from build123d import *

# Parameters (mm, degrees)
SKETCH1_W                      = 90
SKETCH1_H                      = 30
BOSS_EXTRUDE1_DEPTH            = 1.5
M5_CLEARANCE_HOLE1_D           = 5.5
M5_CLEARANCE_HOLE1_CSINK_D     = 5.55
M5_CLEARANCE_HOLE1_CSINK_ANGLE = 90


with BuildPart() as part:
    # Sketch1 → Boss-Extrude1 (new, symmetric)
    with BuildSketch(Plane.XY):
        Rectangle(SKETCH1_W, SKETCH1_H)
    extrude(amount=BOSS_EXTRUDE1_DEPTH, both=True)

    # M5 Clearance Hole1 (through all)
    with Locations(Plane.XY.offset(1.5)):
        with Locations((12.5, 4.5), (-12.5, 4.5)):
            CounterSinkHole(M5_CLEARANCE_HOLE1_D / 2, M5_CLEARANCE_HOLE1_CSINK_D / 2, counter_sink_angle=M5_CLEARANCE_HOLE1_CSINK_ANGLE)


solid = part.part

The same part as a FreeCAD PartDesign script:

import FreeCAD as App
import Part
import Sketcher
Q = App.Units.Quantity


def add_polygon(sketch, points):
    """Adds a closed chain of lines whose ends are joined by coincident constraints."""
    first, n = sketch.GeometryCount, len(points)
    for a, b in zip(points, points[1:] + points[:1]):
        sketch.addGeometry(Part.LineSegment(App.Vector(*a, 0), App.Vector(*b, 0)), False)
    for i in range(n):
        sketch.addConstraint(Sketcher.Constraint("Coincident", first + i, 2, first + (i + 1) % n, 1))

doc = App.newDocument("Part")
body = doc.addObject("PartDesign::Body", "Body")

# Sketch on XY plane
sketch1 = body.newObject("Sketcher::SketchObject", "Sketch")
sketch1.AttachmentSupport = (doc.getObject("XY_Plane"), [""])
sketch1.MapMode = "FlatFace"
add_polygon(sketch1, [(-45, 15), (-45, -15), (45, -15), (45, 15)])  # lines 0-3
sketch1.addConstraint([
    Sketcher.Constraint("Vertical", 0),
    Sketcher.Constraint("Horizontal", 1),
    Sketcher.Constraint("Vertical", 2),
    Sketcher.Constraint("Horizontal", 3),
    Sketcher.Constraint("Symmetric", 0, 2, 2, 2, -1, 1),
    Sketcher.Constraint("DistanceX", 1, 1, 1, 2, Q("90 mm")),
    Sketcher.Constraint("DistanceY", 0, 2, 0, 1, Q("30 mm")),
])
pad1 = body.newObject("PartDesign::Pad", "Pad")
pad1.Profile = sketch1
pad1.Length = 3
pad1.Midplane = True

# Sketch on XY plane
sketch2 = body.newObject("Sketcher::SketchObject", "Sketch001")
sketch2.AttachmentSupport = (doc.getObject("XY_Plane"), [""])
sketch2.MapMode = "FlatFace"
sketch2.AttachmentOffset = App.Placement(App.Vector(0, 0, 1.5), App.Rotation())
sketch2.addGeometry([
    Part.Circle(App.Vector(12.5, 4.5, 0), App.Vector(0, 0, 1), 2.75),
    Part.Circle(App.Vector(-12.5, 4.5, 0), App.Vector(0, 0, 1), 2.75),
], False)
sketch2.addConstraint([
    Sketcher.Constraint("Equal", 0, 1),
    Sketcher.Constraint("Symmetric", 0, 3, 1, 3, -2),
    Sketcher.Constraint("Diameter", 0, Q("5.5 mm")),
    Sketcher.Constraint("DistanceX", 1, 3, 0, 3, Q("25 mm")),
    Sketcher.Constraint("DistanceY", -1, 1, 0, 3, Q("4.5 mm")),
])
doc.recompute()
hole = body.newObject("PartDesign::Hole", "Hole")
hole.Profile = sketch2
hole.ThreadType = "None"
hole.Diameter = 5.5
hole.DepthType = "ThroughAll"
hole.HoleCutType = "Countersink"
hole.HoleCutDiameter = 5.55
hole.HoleCutCountersinkAngle = 90

doc.recompute()
